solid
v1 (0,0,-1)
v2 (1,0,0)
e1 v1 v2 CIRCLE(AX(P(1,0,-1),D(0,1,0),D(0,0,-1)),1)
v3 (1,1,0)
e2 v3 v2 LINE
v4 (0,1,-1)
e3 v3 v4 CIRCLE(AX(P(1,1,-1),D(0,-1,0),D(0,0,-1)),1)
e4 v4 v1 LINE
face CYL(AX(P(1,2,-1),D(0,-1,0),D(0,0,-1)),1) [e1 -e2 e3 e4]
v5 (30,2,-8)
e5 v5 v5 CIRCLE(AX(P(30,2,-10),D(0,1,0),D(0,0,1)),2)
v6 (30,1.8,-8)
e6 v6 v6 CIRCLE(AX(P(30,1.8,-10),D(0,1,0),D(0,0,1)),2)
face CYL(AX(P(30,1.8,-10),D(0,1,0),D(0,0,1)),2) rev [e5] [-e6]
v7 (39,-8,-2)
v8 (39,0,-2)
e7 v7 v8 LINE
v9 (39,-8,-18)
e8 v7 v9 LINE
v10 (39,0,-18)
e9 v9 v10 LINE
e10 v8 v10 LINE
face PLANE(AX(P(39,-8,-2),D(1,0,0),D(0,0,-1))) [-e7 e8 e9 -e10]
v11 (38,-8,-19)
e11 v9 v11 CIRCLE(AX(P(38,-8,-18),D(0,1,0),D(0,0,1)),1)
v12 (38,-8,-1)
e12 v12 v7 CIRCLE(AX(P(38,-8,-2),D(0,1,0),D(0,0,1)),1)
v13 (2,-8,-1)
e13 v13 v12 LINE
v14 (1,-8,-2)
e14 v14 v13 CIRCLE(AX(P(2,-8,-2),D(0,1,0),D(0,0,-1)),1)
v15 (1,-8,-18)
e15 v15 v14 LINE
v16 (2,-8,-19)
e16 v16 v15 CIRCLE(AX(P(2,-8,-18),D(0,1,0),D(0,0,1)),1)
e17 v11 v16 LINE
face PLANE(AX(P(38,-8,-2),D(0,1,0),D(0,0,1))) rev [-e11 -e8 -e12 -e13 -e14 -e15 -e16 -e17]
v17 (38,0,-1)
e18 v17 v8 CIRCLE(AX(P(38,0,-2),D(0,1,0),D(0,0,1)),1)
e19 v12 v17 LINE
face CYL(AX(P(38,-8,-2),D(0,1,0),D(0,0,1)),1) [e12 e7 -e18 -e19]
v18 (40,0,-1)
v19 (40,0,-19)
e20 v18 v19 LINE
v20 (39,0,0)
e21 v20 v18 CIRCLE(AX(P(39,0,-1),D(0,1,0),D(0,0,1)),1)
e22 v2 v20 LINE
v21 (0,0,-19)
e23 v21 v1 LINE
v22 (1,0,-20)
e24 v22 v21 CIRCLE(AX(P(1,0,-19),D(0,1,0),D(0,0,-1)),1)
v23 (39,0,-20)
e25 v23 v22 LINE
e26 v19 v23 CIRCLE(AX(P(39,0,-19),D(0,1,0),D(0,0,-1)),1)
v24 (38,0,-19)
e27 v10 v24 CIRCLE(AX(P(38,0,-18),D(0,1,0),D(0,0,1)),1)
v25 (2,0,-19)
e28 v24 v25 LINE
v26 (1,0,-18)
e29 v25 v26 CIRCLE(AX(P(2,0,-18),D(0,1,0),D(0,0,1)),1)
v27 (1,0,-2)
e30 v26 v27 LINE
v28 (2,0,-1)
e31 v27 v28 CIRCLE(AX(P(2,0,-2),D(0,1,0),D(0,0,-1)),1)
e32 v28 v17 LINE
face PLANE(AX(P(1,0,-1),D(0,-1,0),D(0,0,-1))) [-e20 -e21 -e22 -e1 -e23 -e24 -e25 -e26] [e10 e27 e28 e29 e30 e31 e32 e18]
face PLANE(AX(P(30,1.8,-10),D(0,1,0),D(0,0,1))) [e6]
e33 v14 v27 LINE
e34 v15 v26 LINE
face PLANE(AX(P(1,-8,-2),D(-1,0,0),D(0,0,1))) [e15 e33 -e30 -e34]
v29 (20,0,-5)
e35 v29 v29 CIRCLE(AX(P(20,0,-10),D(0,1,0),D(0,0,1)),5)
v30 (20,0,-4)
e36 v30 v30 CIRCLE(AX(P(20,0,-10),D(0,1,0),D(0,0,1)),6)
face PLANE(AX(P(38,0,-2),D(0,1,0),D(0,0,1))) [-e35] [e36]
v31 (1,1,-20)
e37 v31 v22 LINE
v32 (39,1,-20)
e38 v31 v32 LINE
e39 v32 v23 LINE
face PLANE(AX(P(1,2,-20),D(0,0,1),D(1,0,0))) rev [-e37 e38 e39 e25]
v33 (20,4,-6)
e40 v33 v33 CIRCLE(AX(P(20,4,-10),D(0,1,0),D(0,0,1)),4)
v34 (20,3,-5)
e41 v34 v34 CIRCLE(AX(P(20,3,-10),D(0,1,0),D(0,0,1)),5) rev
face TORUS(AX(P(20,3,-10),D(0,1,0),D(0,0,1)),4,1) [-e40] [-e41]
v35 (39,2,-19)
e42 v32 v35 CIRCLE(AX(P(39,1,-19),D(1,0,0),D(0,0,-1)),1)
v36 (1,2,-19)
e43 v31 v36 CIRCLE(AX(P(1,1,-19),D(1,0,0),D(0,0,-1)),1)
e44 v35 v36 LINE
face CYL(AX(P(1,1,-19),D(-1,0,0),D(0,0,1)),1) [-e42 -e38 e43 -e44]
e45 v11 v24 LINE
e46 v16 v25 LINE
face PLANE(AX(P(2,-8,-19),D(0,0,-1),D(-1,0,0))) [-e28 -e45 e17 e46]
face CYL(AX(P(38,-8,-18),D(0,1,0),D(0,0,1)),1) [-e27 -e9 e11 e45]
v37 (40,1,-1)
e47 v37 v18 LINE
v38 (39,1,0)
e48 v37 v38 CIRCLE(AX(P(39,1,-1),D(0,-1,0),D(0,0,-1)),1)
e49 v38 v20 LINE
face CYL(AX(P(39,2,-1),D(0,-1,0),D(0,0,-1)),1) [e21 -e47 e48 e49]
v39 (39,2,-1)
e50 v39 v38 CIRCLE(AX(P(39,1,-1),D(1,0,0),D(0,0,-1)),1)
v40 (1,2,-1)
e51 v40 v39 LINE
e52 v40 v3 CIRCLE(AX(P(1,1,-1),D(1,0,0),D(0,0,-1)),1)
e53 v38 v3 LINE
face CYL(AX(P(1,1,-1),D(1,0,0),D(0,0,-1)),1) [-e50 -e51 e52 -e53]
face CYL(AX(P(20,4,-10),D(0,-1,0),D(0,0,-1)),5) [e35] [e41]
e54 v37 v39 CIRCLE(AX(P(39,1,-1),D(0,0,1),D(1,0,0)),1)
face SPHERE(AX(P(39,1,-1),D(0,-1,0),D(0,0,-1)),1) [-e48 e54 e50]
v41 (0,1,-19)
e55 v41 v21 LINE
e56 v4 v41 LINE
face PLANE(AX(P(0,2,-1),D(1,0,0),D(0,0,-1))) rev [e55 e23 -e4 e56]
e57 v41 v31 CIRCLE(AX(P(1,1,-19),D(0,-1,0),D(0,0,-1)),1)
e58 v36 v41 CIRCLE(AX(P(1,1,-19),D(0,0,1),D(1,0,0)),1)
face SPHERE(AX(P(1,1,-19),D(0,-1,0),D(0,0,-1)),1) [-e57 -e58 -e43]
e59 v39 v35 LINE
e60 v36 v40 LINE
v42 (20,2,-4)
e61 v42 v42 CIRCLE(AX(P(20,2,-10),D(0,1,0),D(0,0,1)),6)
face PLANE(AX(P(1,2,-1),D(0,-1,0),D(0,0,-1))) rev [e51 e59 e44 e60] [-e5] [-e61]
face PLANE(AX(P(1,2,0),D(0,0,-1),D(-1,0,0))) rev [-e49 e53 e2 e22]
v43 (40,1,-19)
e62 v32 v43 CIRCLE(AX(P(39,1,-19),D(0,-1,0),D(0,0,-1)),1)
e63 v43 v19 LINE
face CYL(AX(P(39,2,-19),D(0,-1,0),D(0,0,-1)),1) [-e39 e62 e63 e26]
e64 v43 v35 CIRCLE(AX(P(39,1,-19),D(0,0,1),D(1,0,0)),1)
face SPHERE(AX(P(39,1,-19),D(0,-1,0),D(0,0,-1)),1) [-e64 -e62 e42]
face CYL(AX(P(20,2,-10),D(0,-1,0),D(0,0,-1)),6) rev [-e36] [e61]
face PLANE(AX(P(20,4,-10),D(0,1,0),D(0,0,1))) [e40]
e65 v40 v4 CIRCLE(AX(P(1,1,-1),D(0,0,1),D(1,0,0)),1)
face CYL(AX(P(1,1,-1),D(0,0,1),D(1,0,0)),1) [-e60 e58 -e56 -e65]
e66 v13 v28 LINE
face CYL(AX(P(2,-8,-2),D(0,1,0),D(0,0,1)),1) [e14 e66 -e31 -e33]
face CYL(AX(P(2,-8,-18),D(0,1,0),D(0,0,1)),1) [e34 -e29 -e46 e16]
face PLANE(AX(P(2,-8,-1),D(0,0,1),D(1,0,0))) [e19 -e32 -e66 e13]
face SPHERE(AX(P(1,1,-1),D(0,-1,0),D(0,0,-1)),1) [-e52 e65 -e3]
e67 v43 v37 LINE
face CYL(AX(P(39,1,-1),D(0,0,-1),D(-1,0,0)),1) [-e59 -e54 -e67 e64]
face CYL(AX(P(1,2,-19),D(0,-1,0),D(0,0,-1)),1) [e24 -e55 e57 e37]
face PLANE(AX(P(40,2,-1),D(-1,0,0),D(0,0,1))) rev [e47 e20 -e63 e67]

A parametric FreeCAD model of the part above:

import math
import FreeCAD as App
import Part
import Sketcher


def edges_at(feature, points):
    """Names of the edges that pass closest to the given points."""
    edges = feature.Shape.Edges
    near = lambda p: min(range(len(edges)), key=lambda i: edges[i].distToShape(Part.Vertex(*p))[0])
    return sorted({f"Edge{near(p) + 1}" for p in points})

doc = App.newDocument("Part")
body = doc.addObject("PartDesign::Body", "Body")

# Sketch on XZ plane
sketch1 = doc.addObject("Sketcher::SketchObject", "Sketch")
body.addObject(sketch1)
sketch1.AttachmentSupport = (doc.XZ_Plane, [""])
sketch1.MapMode = "FlatFace"
sketch1.addGeometry([
    Part.LineSegment(App.Vector(1, 0, 0), App.Vector(39, 0, 0)),  # 0
    Part.ArcOfCircle(Part.Circle(App.Vector(39, -1, 0), App.Vector(0, 0, 1), 1), math.radians(0), math.radians(90)),  # 1
    Part.LineSegment(App.Vector(40, -1, 0), App.Vector(40, -19, 0)),  # 2
    Part.ArcOfCircle(Part.Circle(App.Vector(39, -19, 0), App.Vector(0, 0, 1), 1), math.radians(-90), math.radians(0)),  # 3
    Part.LineSegment(App.Vector(39, -20, 0), App.Vector(1, -20, 0)),  # 4
    Part.ArcOfCircle(Part.Circle(App.Vector(1, -19, 0), App.Vector(0, 0, 1), 1), math.radians(-180), math.radians(-90)),  # 5
    Part.LineSegment(App.Vector(0, -19, 0), App.Vector(0, -1, 0)),  # 6
    Part.ArcOfCircle(Part.Circle(App.Vector(1, -1, 0), App.Vector(0, 0, 1), 1), math.radians(90), math.radians(180)),  # 7
    Part.Circle(App.Vector(20, -10, 0), App.Vector(0, 0, 1), 6),  # 8
], False)
sketch1.addConstraint([
    Sketcher.Constraint("Tangent", 0, 2, 1, 2),
    Sketcher.Constraint("Tangent", 1, 1, 2, 1),
    Sketcher.Constraint("Tangent", 2, 2, 3, 2),
    Sketcher.Constraint("Tangent", 3, 1, 4, 1),
    Sketcher.Constraint("Tangent", 4, 2, 5, 2),
    Sketcher.Constraint("Tangent", 5, 1, 6, 1),
    Sketcher.Constraint("Tangent", 6, 2, 7, 2),
    Sketcher.Constraint("Tangent", 7, 1, 0, 1),
    Sketcher.Constraint("Horizontal", 0),
    Sketcher.Constraint("Vertical", 2),
    Sketcher.Constraint("Horizontal", 4),
    Sketcher.Constraint("Vertical", 6),
    Sketcher.Constraint("Equal", 1, 3),
    Sketcher.Constraint("Equal", 3, 5),
    Sketcher.Constraint("Equal", 5, 7),
    Sketcher.Constraint("PointOnObject", 0, 2, -1),
    Sketcher.Constraint("PointOnObject", 5, 1, -2),
    Sketcher.Constraint("Diameter", 8, 12.0),
    Sketcher.Constraint("Radius", 1, 1.0),
    Sketcher.Constraint("DistanceX", 0, 1, 0, 2, 38.0),
    Sketcher.Constraint("DistanceY", 2, 2, 2, 1, 18.0),
    Sketcher.Constraint("DistanceX", -1, 1, 8, 3, 20.0),
    Sketcher.Constraint("DistanceY", 8, 3, -1, 1, 10.0),
])
pad1 = doc.addObject("PartDesign::Pad", "Pad")
body.addObject(pad1)
pad1.Profile = sketch1
pad1.Length = 2
pad1.Reversed = True

# Sketch on XZ plane
sketch2 = doc.addObject("Sketcher::SketchObject", "Sketch001")
body.addObject(sketch2)
sketch2.AttachmentSupport = (doc.XZ_Plane, [""])
sketch2.MapMode = "FlatFace"
sketch2.addGeometry([
    Part.LineSegment(App.Vector(2, -1, 0), App.Vector(38, -1, 0)),  # 0
    Part.ArcOfCircle(Part.Circle(App.Vector(38, -2, 0), App.Vector(0, 0, 1), 1), math.radians(0), math.radians(90)),  # 1
    Part.LineSegment(App.Vector(39, -2, 0), App.Vector(39, -18, 0)),  # 2
    Part.ArcOfCircle(Part.Circle(App.Vector(38, -18, 0), App.Vector(0, 0, 1), 1), math.radians(-90), math.radians(0)),  # 3
    Part.LineSegment(App.Vector(38, -19, 0), App.Vector(2, -19, 0)),  # 4
    Part.ArcOfCircle(Part.Circle(App.Vector(2, -18, 0), App.Vector(0, 0, 1), 1), math.radians(-180), math.radians(-90)),  # 5
    Part.LineSegment(App.Vector(1, -18, 0), App.Vector(1, -2, 0)),  # 6
    Part.ArcOfCircle(Part.Circle(App.Vector(2, -2, 0), App.Vector(0, 0, 1), 1), math.radians(90), math.radians(180)),  # 7
], False)
sketch2.addConstraint([
    Sketcher.Constraint("Tangent", 0, 2, 1, 2),
    Sketcher.Constraint("Tangent", 1, 1, 2, 1),
    Sketcher.Constraint("Tangent", 2, 2, 3, 2),
    Sketcher.Constraint("Tangent", 3, 1, 4, 1),
    Sketcher.Constraint("Tangent", 4, 2, 5, 2),
    Sketcher.Constraint("Tangent", 5, 1, 6, 1),
    Sketcher.Constraint("Tangent", 6, 2, 7, 2),
    Sketcher.Constraint("Tangent", 7, 1, 0, 1),
    Sketcher.Constraint("Horizontal", 0),
    Sketcher.Constraint("Vertical", 2),
    Sketcher.Constraint("Horizontal", 4),
    Sketcher.Constraint("Vertical", 6),
    Sketcher.Constraint("Equal", 1, 3),
    Sketcher.Constraint("Equal", 3, 5),
    Sketcher.Constraint("Equal", 5, 7),
    Sketcher.Constraint("Radius", 1, 1.0),
    Sketcher.Constraint("DistanceX", 0, 1, 0, 2, 36.0),
    Sketcher.Constraint("DistanceY", 2, 2, 2, 1, 16.0),
    Sketcher.Constraint("DistanceX", -1, 1, 1, 3, 38.0),
    Sketcher.Constraint("DistanceY", 1, 3, -1, 1, 2.0),
])
pad2 = doc.addObject("PartDesign::Pad", "Pad001")
body.addObject(pad2)
pad2.Profile = sketch2
pad2.Length = 8

# Sketch on XZ plane
sketch3 = doc.addObject("Sketcher::SketchObject", "Sketch002")
body.addObject(sketch3)
sketch3.AttachmentSupport = (doc.XZ_Plane, [""])
sketch3.MapMode = "FlatFace"
sketch3.addGeometry(Part.Circle(App.Vector(20, -10, 0), App.Vector(0, 0, 1), 5), False)
sketch3.addConstraint([
    Sketcher.Constraint("Diameter", 0, 10.0),
    Sketcher.Constraint("DistanceX", -1, 1, 0, 3, 20.0),
    Sketcher.Constraint("DistanceY", 0, 3, -1, 1, 10.0),
])
pad3 = doc.addObject("PartDesign::Pad", "Pad002")
body.addObject(pad3)
pad3.Profile = sketch3
pad3.Length = 4
pad3.Reversed = True

# Sketch on XZ plane
sketch4 = doc.addObject("Sketcher::SketchObject", "Sketch003")
body.addObject(sketch4)
sketch4.AttachmentSupport = (doc.XZ_Plane, [""])
sketch4.MapMode = "FlatFace"
sketch4.AttachmentOffset = App.Placement(App.Vector(0, 0, -2), App.Rotation())
sketch4.addGeometry(Part.Circle(App.Vector(30, -10, 0), App.Vector(0, 0, 1), 2), False)
sketch4.addConstraint([
    Sketcher.Constraint("Diameter", 0, 4.0),
    Sketcher.Constraint("DistanceX", -1, 1, 0, 3, 30.0),
    Sketcher.Constraint("DistanceY", 0, 3, -1, 1, 10.0),
])
pocket1 = doc.addObject("PartDesign::Pocket", "Pocket")
body.addObject(pocket1)
pocket1.Profile = sketch4
pocket1.Length = 0.2
pocket1.Reversed = True
doc.recompute()

fillet = doc.addObject("PartDesign::Fillet", "Fillet")
body.addObject(fillet)
fillet.Base = (pocket1, edges_at(pocket1, [
    (39.707, 2, -0.293),
    (40, 2, -10),
    (39.707, 2, -19.707),
    (20, 2, -20),
    (0.293, 2, -19.707),
    (0, 2, -10),
    (0.293, 2, -0.293),
    (20, 4, -15),
    (20, 2, 0),
]))
fillet.Radius = 1

doc.recompute()
